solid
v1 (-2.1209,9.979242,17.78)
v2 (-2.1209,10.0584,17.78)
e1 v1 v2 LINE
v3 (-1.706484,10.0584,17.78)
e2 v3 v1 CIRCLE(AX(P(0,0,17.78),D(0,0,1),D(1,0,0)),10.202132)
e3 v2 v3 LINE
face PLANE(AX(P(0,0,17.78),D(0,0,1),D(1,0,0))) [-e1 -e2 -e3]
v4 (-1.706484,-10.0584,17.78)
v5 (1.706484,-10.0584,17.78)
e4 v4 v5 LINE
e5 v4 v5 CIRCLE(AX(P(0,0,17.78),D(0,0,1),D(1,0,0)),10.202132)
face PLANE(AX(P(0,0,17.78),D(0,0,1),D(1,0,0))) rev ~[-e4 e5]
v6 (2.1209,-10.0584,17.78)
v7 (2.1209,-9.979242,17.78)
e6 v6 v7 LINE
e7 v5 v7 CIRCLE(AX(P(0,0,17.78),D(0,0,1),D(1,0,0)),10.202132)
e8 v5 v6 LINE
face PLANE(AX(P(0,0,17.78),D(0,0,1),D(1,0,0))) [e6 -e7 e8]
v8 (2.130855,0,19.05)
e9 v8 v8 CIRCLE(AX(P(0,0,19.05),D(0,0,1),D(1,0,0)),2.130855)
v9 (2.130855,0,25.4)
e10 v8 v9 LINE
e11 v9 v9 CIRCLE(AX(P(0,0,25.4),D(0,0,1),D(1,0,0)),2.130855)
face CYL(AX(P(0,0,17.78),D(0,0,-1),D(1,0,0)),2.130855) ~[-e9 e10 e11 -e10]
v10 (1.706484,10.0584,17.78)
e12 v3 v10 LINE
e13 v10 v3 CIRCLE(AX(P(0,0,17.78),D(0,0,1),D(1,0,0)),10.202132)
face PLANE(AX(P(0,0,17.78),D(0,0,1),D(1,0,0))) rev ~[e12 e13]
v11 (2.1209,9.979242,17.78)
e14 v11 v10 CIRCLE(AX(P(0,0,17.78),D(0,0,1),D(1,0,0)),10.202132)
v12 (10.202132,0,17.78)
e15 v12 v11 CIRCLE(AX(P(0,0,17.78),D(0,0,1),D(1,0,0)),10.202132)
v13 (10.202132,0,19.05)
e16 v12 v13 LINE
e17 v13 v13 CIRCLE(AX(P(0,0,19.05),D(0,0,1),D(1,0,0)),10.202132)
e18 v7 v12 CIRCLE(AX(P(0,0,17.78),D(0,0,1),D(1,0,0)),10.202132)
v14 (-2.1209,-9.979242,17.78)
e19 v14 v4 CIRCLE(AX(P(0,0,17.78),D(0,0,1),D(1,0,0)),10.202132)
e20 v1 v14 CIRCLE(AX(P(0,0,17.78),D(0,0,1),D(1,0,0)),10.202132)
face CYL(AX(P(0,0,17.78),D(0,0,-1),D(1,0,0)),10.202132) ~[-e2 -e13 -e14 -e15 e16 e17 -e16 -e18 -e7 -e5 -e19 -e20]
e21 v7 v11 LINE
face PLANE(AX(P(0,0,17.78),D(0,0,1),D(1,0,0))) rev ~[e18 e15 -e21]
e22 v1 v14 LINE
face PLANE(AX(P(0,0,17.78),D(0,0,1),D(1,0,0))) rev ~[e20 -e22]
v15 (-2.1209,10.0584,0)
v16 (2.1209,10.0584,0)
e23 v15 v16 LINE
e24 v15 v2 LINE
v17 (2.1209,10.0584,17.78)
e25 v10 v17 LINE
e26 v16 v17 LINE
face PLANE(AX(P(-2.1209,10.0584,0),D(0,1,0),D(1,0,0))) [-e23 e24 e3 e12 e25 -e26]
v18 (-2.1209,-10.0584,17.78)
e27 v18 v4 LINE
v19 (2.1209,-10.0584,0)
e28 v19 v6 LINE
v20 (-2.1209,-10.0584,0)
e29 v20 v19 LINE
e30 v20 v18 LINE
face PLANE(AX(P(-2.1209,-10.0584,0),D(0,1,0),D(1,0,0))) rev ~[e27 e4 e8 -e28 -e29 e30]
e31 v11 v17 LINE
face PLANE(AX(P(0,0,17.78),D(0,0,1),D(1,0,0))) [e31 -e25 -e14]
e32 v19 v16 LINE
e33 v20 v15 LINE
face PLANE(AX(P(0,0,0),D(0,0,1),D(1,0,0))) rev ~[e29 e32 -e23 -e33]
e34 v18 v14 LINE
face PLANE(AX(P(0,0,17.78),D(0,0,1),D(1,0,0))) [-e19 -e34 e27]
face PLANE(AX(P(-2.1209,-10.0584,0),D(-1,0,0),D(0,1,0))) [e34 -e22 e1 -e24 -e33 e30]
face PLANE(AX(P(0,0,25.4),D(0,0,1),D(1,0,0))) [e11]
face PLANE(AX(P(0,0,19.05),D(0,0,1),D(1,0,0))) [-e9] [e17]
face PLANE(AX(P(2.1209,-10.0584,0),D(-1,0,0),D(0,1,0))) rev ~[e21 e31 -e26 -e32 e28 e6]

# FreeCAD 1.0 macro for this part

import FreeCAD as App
import Part
import Sketcher
from FreeCAD import Vector
Q = App.Units.Quantity


def add_polygon(sketch, points):
    """Adds a closed chain of lines whose ends are joined by coincident constraints."""
    first, n = sketch.GeometryCount, len(points)
    for a, b in zip(points, points[1:] + points[:1]):
        sketch.addGeometry(Part.LineSegment(App.Vector(*a, 0), App.Vector(*b, 0)), False)
    for i in range(n):
        sketch.addConstraint(Sketcher.Constraint("Coincident", first + i, 2, first + (i + 1) % n, 1))

doc = App.newDocument("Part")
body = doc.addObject("PartDesign::Body", "Body")

# Sketch on XY plane
sketch1 = body.newObject("Sketcher::SketchObject", "Sketch")
sketch1.AttachmentSupport = (doc.getObject("XY_Plane"), [""])
sketch1.MapMode = "FlatFace"
add_polygon(sketch1, [(-2.1, 10.1), (-2.1, -10.1), (2.1, -10.1), (2.1, 10.1)])  # lines 0-3
sketch1.addConstraint([
    Sketcher.Constraint("Vertical", 0),
    Sketcher.Constraint("Horizontal", 1),
    Sketcher.Constraint("Vertical", 2),
    Sketcher.Constraint("Horizontal", 3),
    Sketcher.Constraint("Symmetric", 0, 2, 2, 2, -1, 1),
    Sketcher.Constraint("DistanceX", 1, 1, 1, 2, Q("0.167 in")),
    Sketcher.Constraint("DistanceY", 0, 2, 0, 1, Q("0.792 in")),
])
pad1 = body.newObject("PartDesign::Pad", "Pad")
pad1.Profile = sketch1
pad1.Length = Q("0.7 in")

# Sketch on XY plane
sketch2 = body.newObject("Sketcher::SketchObject", "Sketch001")
sketch2.AttachmentSupport = (doc.getObject("XY_Plane"), [""])
sketch2.MapMode = "FlatFace"
sketch2.AttachmentOffset = App.Placement(Vector(0, 0, 0.7 * 25.4), App.Rotation())
sketch2.addGeometry(Part.Circle(Vector(0, 0, 0), Vector(0, 0, 1), 2.1), False)
sketch2.addConstraint([
    Sketcher.Constraint("Coincident", 0, 3, -1, 1),
    Sketcher.Constraint("Diameter", 0, 4.26171),
])
pad2 = body.newObject("PartDesign::Pad", "Pad001")
pad2.Profile = sketch2
pad2.Length = Q("0.3 in")

# Sketch on XY plane
sketch3 = body.newObject("Sketcher::SketchObject", "Sketch002")
sketch3.AttachmentSupport = (doc.getObject("XY_Plane"), [""])
sketch3.MapMode = "FlatFace"
sketch3.AttachmentOffset = App.Placement(Vector(0, 0, 0.7 * 25.4), App.Rotation())
sketch3.addGeometry([
    Part.Circle(Vector(0, 0, 0), Vector(0, 0, 1), 10.2),
    Part.Circle(Vector(0, 0, 0), Vector(0, 0, 1), 2.1),
], False)
sketch3.addConstraint([
    Sketcher.Constraint("Coincident", 0, 3, -1, 1),
    Sketcher.Constraint("Coincident", 1, 3, -1, 1),
    Sketcher.Constraint("Diameter", 1, 4.26171),
    Sketcher.Constraint("Diameter", 0, 20.404264),
])
pad3 = body.newObject("PartDesign::Pad", "Pad002")
pad3.Profile = sketch3
pad3.Length = Q("0.05 in")

doc.recompute()
